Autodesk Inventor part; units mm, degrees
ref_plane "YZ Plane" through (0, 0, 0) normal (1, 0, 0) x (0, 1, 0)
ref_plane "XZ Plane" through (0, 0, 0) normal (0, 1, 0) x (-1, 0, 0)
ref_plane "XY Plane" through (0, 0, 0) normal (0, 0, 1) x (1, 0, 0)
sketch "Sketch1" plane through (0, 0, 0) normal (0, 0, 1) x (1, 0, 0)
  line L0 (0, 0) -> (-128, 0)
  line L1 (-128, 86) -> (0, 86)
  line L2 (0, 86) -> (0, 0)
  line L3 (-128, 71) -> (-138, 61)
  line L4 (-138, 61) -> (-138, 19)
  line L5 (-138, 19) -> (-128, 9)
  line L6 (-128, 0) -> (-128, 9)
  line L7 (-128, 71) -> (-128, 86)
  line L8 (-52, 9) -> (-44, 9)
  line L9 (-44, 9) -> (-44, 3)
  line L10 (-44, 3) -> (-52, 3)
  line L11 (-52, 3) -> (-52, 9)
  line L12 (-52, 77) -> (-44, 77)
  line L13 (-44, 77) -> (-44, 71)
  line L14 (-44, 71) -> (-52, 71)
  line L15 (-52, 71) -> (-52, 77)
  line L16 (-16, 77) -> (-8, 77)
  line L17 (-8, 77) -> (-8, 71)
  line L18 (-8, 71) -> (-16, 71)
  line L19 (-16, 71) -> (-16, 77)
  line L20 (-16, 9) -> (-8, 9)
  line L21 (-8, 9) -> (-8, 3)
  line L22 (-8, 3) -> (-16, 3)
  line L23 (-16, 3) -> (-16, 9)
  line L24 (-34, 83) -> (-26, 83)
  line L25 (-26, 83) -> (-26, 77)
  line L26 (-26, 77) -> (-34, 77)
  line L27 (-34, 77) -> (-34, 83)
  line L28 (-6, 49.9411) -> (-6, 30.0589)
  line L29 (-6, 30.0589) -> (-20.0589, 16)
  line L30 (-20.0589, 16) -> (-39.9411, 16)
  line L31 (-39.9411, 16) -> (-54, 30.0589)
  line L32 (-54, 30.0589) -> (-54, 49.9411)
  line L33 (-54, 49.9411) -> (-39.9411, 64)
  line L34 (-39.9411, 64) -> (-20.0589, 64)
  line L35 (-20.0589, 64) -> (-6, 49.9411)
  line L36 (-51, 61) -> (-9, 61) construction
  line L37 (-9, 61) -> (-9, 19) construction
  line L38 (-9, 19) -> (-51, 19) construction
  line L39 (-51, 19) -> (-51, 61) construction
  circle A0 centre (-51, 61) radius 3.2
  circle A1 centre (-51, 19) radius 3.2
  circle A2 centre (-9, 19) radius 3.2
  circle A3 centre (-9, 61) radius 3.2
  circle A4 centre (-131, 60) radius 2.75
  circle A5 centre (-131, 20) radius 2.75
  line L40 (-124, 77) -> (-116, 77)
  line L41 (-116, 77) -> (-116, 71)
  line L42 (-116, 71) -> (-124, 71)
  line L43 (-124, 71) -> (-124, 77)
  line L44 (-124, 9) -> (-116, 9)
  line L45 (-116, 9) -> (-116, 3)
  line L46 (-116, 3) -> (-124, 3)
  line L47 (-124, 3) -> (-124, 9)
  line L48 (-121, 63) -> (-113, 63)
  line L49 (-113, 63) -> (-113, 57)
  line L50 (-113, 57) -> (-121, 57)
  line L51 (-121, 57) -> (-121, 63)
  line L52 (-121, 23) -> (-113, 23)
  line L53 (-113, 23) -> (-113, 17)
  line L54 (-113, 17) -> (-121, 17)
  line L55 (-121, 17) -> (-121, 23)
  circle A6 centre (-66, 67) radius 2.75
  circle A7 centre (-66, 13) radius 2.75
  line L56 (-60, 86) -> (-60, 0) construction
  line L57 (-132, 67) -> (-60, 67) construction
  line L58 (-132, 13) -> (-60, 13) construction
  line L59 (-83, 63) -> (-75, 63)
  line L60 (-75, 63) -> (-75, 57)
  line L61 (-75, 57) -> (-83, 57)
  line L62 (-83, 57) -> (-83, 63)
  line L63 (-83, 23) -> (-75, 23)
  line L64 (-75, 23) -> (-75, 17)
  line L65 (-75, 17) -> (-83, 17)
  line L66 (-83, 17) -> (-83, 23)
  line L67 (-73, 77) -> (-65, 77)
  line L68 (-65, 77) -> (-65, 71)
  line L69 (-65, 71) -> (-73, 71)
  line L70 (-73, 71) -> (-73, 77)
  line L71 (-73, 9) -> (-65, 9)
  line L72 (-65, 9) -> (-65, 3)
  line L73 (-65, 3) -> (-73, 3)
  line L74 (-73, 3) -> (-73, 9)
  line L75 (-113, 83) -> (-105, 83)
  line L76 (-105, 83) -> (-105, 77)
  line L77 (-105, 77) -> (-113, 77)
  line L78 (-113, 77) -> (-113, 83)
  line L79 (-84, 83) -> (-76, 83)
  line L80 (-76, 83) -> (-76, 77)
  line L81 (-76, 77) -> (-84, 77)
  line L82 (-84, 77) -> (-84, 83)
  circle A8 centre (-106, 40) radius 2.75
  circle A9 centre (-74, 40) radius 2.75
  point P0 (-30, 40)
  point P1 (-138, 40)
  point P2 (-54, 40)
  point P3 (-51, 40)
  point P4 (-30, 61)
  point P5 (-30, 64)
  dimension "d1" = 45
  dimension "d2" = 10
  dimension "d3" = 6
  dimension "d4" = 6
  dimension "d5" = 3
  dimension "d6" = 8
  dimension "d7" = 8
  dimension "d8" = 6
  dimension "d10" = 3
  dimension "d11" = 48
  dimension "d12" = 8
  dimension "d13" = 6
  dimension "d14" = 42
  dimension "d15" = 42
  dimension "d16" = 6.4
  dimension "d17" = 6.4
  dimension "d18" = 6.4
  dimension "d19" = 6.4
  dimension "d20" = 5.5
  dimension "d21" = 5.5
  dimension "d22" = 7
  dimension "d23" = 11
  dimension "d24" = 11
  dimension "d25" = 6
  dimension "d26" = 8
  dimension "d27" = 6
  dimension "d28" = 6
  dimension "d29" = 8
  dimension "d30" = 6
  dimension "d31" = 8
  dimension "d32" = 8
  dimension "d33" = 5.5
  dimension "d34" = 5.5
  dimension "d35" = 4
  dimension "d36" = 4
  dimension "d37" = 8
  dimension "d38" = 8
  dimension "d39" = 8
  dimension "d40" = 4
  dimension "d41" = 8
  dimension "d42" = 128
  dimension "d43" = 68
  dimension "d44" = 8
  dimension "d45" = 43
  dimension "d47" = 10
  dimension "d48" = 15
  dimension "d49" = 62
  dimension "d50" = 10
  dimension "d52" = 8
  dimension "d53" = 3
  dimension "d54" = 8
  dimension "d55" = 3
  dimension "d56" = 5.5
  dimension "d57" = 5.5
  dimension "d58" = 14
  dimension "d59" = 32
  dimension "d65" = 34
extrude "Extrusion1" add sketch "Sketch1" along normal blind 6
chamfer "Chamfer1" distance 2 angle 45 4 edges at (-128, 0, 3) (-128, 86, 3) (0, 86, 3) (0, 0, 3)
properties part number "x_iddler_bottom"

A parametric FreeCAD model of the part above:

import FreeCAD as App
import Part
import Sketcher
from FreeCAD import Vector
Q = App.Units.Quantity


def edges_at(feature, points):
    """Names of the edges that pass closest to the given points."""
    edges = feature.Shape.Edges
    near = lambda p: min(range(len(edges)), key=lambda i: edges[i].distToShape(Part.Vertex(*p))[0])
    return sorted({f"Edge{near(p) + 1}" for p in points})


def add_polygon(sketch, points):
    """Adds a closed chain of lines whose ends are joined by coincident constraints."""
    first, n = sketch.GeometryCount, len(points)
    for a, b in zip(points, points[1:] + points[:1]):
        sketch.addGeometry(Part.LineSegment(App.Vector(*a, 0), App.Vector(*b, 0)), False)
    for i in range(n):
        sketch.addConstraint(Sketcher.Constraint("Coincident", first + i, 2, first + (i + 1) % n, 1))

doc = App.newDocument("Part")
body = doc.addObject("PartDesign::Body", "Body")

# Sketch on XY plane
sketch1 = body.newObject("Sketcher::SketchObject", "Sketch")
sketch1.AttachmentSupport = (doc.getObject("XY_Plane"), [""])
sketch1.MapMode = "FlatFace"
add_polygon(sketch1, [(-128, 0), (0, 0), (0, 86), (-128, 86), (-128, 71), (-138, 61), (-138, 19), (-128, 9)])  # lines 0-7
add_polygon(sketch1, [(-124, 3), (-124, 9), (-116, 9), (-116, 3)])  # lines 8-11
sketch1.addGeometry(Part.Circle(Vector(-131, 20, 0), Vector(0, 0, 1), 2.8), False)  # 12
add_polygon(sketch1, [(-121, 17), (-121, 23), (-113, 23), (-113, 17)])  # lines 13-16
add_polygon(sketch1, [(-83, 17), (-83, 23), (-75, 23), (-75, 17)])  # lines 17-20
sketch1.addGeometry(Part.Circle(Vector(-106, 40, 0), Vector(0, 0, 1), 2.8), False)  # 21
sketch1.addGeometry(Part.Circle(Vector(-74, 40, 0), Vector(0, 0, 1), 2.8), False)  # 22
add_polygon(sketch1, [(-73, 3), (-73, 9), (-65, 9), (-65, 3)])  # lines 23-26
add_polygon(sketch1, [(-52, 3), (-52, 9), (-44, 9), (-44, 3)])  # lines 27-30
sketch1.addGeometry(Part.Circle(Vector(-66, 13, 0), Vector(0, 0, 1), 2.8), False)  # 31
sketch1.addGeometry(Part.Circle(Vector(-51, 19, 0), Vector(0, 0, 1), 3.2), False)  # 32
add_polygon(sketch1, [(-16, 3), (-16, 9), (-8, 9), (-8, 3)])  # lines 33-36
sketch1.addGeometry(Part.Circle(Vector(-9, 19, 0), Vector(0, 0, 1), 3.2), False)  # 37
add_polygon(sketch1, [(-20.1, 64), (-6, 49.9), (-6, 30.1), (-20.1, 16), (-39.9, 16), (-54, 30.1), (-54, 49.9), (-39.9, 64)])  # lines 38-45
sketch1.addGeometry(Part.Circle(Vector(-131, 60, 0), Vector(0, 0, 1), 2.8), False)  # 46
add_polygon(sketch1, [(-121, 57), (-121, 63), (-113, 63), (-113, 57)])  # lines 47-50
add_polygon(sketch1, [(-83, 57), (-83, 63), (-75, 63), (-75, 57)])  # lines 51-54
add_polygon(sketch1, [(-124, 71), (-124, 77), (-116, 77), (-116, 71)])  # lines 55-58
add_polygon(sketch1, [(-113, 77), (-113, 83), (-105, 83), (-105, 77)])  # lines 59-62
add_polygon(sketch1, [(-84, 77), (-84, 83), (-76, 83), (-76, 77)])  # lines 63-66
sketch1.addGeometry(Part.Circle(Vector(-51, 61, 0), Vector(0, 0, 1), 3.2), False)  # 67
sketch1.addGeometry(Part.Circle(Vector(-9, 61, 0), Vector(0, 0, 1), 3.2), False)  # 68
sketch1.addGeometry(Part.Circle(Vector(-66, 67, 0), Vector(0, 0, 1), 2.8), False)  # 69
add_polygon(sketch1, [(-73, 71), (-73, 77), (-65, 77), (-65, 71)])  # lines 70-73
add_polygon(sketch1, [(-52, 71), (-52, 77), (-44, 77), (-44, 71)])  # lines 74-77
add_polygon(sketch1, [(-16, 71), (-16, 77), (-8, 77), (-8, 71)])  # lines 78-81
add_polygon(sketch1, [(-34, 77), (-34, 83), (-26, 83), (-26, 77)])  # lines 82-85
sketch1.addConstraint([
    Sketcher.Constraint("Horizontal", 0),
    Sketcher.Constraint("Vertical", 1),
    Sketcher.Constraint("Horizontal", 2),
    Sketcher.Constraint("Vertical", 3),
    Sketcher.Constraint("Vertical", 5),
    Sketcher.Constraint("Vertical", 7),
    Sketcher.Constraint("Vertical", 8),
    Sketcher.Constraint("Horizontal", 9),
    Sketcher.Constraint("Vertical", 10),
    Sketcher.Constraint("Horizontal", 11),
    Sketcher.Constraint("Vertical", 13),
    Sketcher.Constraint("Horizontal", 14),
    Sketcher.Constraint("Vertical", 15),
    Sketcher.Constraint("Horizontal", 16),
    Sketcher.Constraint("Vertical", 17),
    Sketcher.Constraint("Horizontal", 18),
    Sketcher.Constraint("Vertical", 19),
    Sketcher.Constraint("Horizontal", 20),
    Sketcher.Constraint("Vertical", 23),
    Sketcher.Constraint("Horizontal", 24),
    Sketcher.Constraint("Vertical", 25),
    Sketcher.Constraint("Horizontal", 26),
    Sketcher.Constraint("Vertical", 27),
    Sketcher.Constraint("Horizontal", 28),
    Sketcher.Constraint("Vertical", 29),
    Sketcher.Constraint("Horizontal", 30),
    Sketcher.Constraint("Vertical", 33),
    Sketcher.Constraint("Horizontal", 34),
    Sketcher.Constraint("Vertical", 35),
    Sketcher.Constraint("Horizontal", 36),
    Sketcher.Constraint("Vertical", 39),
    Sketcher.Constraint("Horizontal", 41),
    Sketcher.Constraint("Vertical", 43),
    Sketcher.Constraint("Horizontal", 45),
    Sketcher.Constraint("Vertical", 47),
    Sketcher.Constraint("Horizontal", 48),
    Sketcher.Constraint("Vertical", 49),
    Sketcher.Constraint("Horizontal", 50),
    Sketcher.Constraint("Vertical", 51),
    Sketcher.Constraint("Horizontal", 52),
    Sketcher.Constraint("Vertical", 53),
    Sketcher.Constraint("Horizontal", 54),
    Sketcher.Constraint("Vertical", 55),
    Sketcher.Constraint("Horizontal", 56),
    Sketcher.Constraint("Vertical", 57),
    Sketcher.Constraint("Horizontal", 58),
    Sketcher.Constraint("Vertical", 59),
    Sketcher.Constraint("Horizontal", 60),
    Sketcher.Constraint("Vertical", 61),
    Sketcher.Constraint("Horizontal", 62),
    Sketcher.Constraint("Vertical", 63),
    Sketcher.Constraint("Horizontal", 64),
    Sketcher.Constraint("Vertical", 65),
    Sketcher.Constraint("Horizontal", 66),
    Sketcher.Constraint("Vertical", 70),
    Sketcher.Constraint("Horizontal", 71),
    Sketcher.Constraint("Vertical", 72),
    Sketcher.Constraint("Horizontal", 73),
    Sketcher.Constraint("Vertical", 74),
    Sketcher.Constraint("Horizontal", 75),
    Sketcher.Constraint("Vertical", 76),
    Sketcher.Constraint("Horizontal", 77),
    Sketcher.Constraint("Vertical", 78),
    Sketcher.Constraint("Horizontal", 79),
    Sketcher.Constraint("Vertical", 80),
    Sketcher.Constraint("Horizontal", 81),
    Sketcher.Constraint("Vertical", 82),
    Sketcher.Constraint("Horizontal", 83),
    Sketcher.Constraint("Vertical", 84),
    Sketcher.Constraint("Horizontal", 85),
    Sketcher.Constraint("Coincident", 0, 2, -1, 1),
    Sketcher.Constraint("Equal", 12, 21),
    Sketcher.Constraint("Equal", 21, 22),
    Sketcher.Constraint("Equal", 22, 31),
    Sketcher.Constraint("Equal", 32, 37),
    Sketcher.Constraint("Equal", 31, 46),
    Sketcher.Constraint("Equal", 37, 67),
    Sketcher.Constraint("Equal", 67, 68),
    Sketcher.Constraint("Equal", 46, 69),
    Sketcher.Constraint("Perpendicular", 4, 6),
    Sketcher.Constraint("Parallel", 6, 38),
    Sketcher.Constraint("Perpendicular", 38, 40),
    Sketcher.Constraint("Perpendicular", 40, 42),
    Sketcher.Constraint("Perpendicular", 42, 44),
    Sketcher.Constraint("Horizontal", 21, 3, 22, 3),
    Sketcher.Constraint("Horizontal", 32, 3, 37, 3),
    Sketcher.Constraint("Horizontal", 67, 3, 68, 3),
    Sketcher.Constraint("Horizontal", 68, 3, 4, 2),
    Sketcher.Constraint("Horizontal", 37, 3, 5, 2),
    Sketcher.Constraint("Horizontal", 6, 2, 8, 2),
    Sketcher.Constraint("Horizontal", 14, 2, 17, 2),
    Sketcher.Constraint("Horizontal", 16, 2, 19, 2),
    Sketcher.Constraint("Horizontal", 9, 2, 23, 2),
    Sketcher.Constraint("Horizontal", 11, 2, 25, 2),
    Sketcher.Constraint("Horizontal", 24, 2, 27, 2),
    Sketcher.Constraint("Horizontal", 26, 2, 29, 2),
    Sketcher.Constraint("Horizontal", 28, 2, 33, 2),
    Sketcher.Constraint("Horizontal", 30, 2, 35, 2),
    Sketcher.Constraint("Horizontal", 39, 2, 42, 2),
    Sketcher.Constraint("Horizontal", 38, 2, 43, 2),
    Sketcher.Constraint("Horizontal", 48, 2, 51, 2),
    Sketcher.Constraint("Horizontal", 50, 2, 53, 2),
    Sketcher.Constraint("Horizontal", 3, 2, 57, 2),
    Sketcher.Constraint("Horizontal", 56, 2, 61, 2),
    Sketcher.Constraint("Horizontal", 60, 2, 63, 2),
    Sketcher.Constraint("Horizontal", 62, 2, 65, 2),
    Sketcher.Constraint("Horizontal", 66, 2, 70, 2),
    Sketcher.Constraint("Horizontal", 58, 2, 72, 2),
    Sketcher.Constraint("Horizontal", 71, 2, 74, 2),
    Sketcher.Constraint("Horizontal", 73, 2, 76, 2),
    Sketcher.Constraint("Horizontal", 75, 2, 78, 2),
    Sketcher.Constraint("Horizontal", 77, 2, 80, 2),
    Sketcher.Constraint("Horizontal", 64, 2, 82, 2),
    Sketcher.Constraint("Horizontal", 79, 2, 84, 2),
    Sketcher.Constraint("Vertical", 12, 3, 46, 3),
    Sketcher.Constraint("Vertical", 32, 3, 67, 3),
    Sketcher.Constraint("Vertical", 37, 3, 68, 3),
    Sketcher.Constraint("Vertical", 31, 3, 69, 3),
    Sketcher.Constraint("Vertical", 3, 2, 6, 2),
    Sketcher.Constraint("Vertical", 41, 2, 44, 2),
    Sketcher.Constraint("Vertical", 40, 2, 45, 2),
    Sketcher.Constraint("Vertical", 16, 2, 47, 2),
    Sketcher.Constraint("Vertical", 15, 2, 48, 2),
    Sketcher.Constraint("Vertical", 20, 2, 51, 2),
    Sketcher.Constraint("Vertical", 19, 2, 52, 2),
    Sketcher.Constraint("Vertical", 11, 2, 55, 2),
    Sketcher.Constraint("Vertical", 10, 2, 56, 2),
    Sketcher.Constraint("Vertical", 49, 2, 59, 2),
    Sketcher.Constraint("Vertical", 26, 2, 70, 2),
    Sketcher.Constraint("Vertical", 25, 2, 71, 2),
    Sketcher.Constraint("Vertical", 30, 2, 74, 2),
    Sketcher.Constraint("Vertical", 29, 2, 75, 2),
    Sketcher.Constraint("Vertical", 36, 2, 78, 2),
    Sketcher.Constraint("Vertical", 35, 2, 79, 2),
    Sketcher.Constraint("Equal", 11, 14),
    Sketcher.Constraint("Equal", 16, 18),
    Sketcher.Constraint("Equal", 20, 24),
    Sketcher.Constraint("Equal", 26, 28),
    Sketcher.Constraint("Equal", 30, 34),
    Sketcher.Constraint("Equal", 58, 60),
    Sketcher.Constraint("Equal", 62, 64),
    Sketcher.Constraint("Equal", 81, 83),
    Sketcher.Constraint("Equal", 10, 13),
    Sketcher.Constraint("Equal", 45, 39),
    Sketcher.Constraint("Equal", 35, 47),
    Sketcher.Constraint("Equal", 53, 55),
    Sketcher.Constraint("Equal", 57, 59),
    Sketcher.Constraint("Diameter", 12, Q("5.5 mm")),
    Sketcher.Constraint("Diameter", 32, Q("6.4 mm")),
    Sketcher.Constraint("DistanceX", 0, 1, 0, 2, Q("128 mm")),
    Sketcher.Constraint("DistanceX", 9, 1, 9, 2, Q("8 mm")),
    Sketcher.Constraint("DistanceY", 3, 2, 3, 1, Q("15 mm")),
    Sketcher.Constraint("DistanceY", 5, 2, 5, 1, Q("42 mm")),
    Sketcher.Constraint("DistanceY", 8, 1, 8, 2, Q("6 mm")),
    Sketcher.Constraint("DistanceY", -1, 1, 10, 2, Q("3 mm")),
    Sketcher.Constraint("DistanceX", 34, 2, -1, 1, Q("8 mm")),
    Sketcher.Constraint("DistanceX", 38, 2, -1, 1, Q("6 mm")),
    Sketcher.Constraint("DistanceX", 82, 2, -1, 1, Q("34 mm")),
    Sketcher.Constraint("DistanceY", 1, 1, 1, 2, Q("86 mm")),
    Sketcher.Constraint("DistanceX", 12, 3, -1, 1, Q("131 mm")),
    Sketcher.Constraint("DistanceY", -1, 1, 12, 3, Q("20 mm")),
    Sketcher.Constraint("DistanceX", 21, 3, -1, 1, Q("106 mm")),
    Sketcher.Constraint("DistanceY", -1, 1, 21, 3, Q("40 mm")),
    Sketcher.Constraint("DistanceX", 22, 3, -1, 1, Q("74 mm")),
    Sketcher.Constraint("DistanceX", 31, 3, -1, 1, Q("66 mm")),
    Sketcher.Constraint("DistanceY", -1, 1, 31, 3, Q("13 mm")),
    Sketcher.Constraint("DistanceX", 32, 3, -1, 1, Q("51 mm")),
    Sketcher.Constraint("DistanceX", 37, 3, -1, 1, Q("9 mm")),
    Sketcher.Constraint("DistanceY", -1, 1, 46, 3, Q("60 mm")),
    Sketcher.Constraint("DistanceY", -1, 1, 69, 3, Q("67 mm")),
    Sketcher.Constraint("DistanceX", 8, 2, -1, 1, Q("124 mm")),
    Sketcher.Constraint("DistanceX", 13, 2, -1, 1, Q("121 mm")),
    Sketcher.Constraint("DistanceY", -1, 1, 13, 2, Q("23 mm")),
    Sketcher.Constraint("DistanceX", 17, 2, -1, 1, Q("83 mm")),
    Sketcher.Constraint("DistanceX", 23, 2, -1, 1, Q("73 mm")),
    Sketcher.Constraint("DistanceX", 27, 2, -1, 1, Q("52 mm")),
    Sketcher.Constraint("DistanceY", -1, 1, 40, 2, Q("16 mm")),
    Sketcher.Constraint("DistanceX", 42, 2, -1, 1, Q("54 mm")),
    Sketcher.Constraint("DistanceY", -1, 1, 47, 2, Q("63 mm")),
    Sketcher.Constraint("DistanceX", 63, 2, -1, 1, Q("84 mm")),
    Sketcher.Constraint("DistanceX", 41, 2, 41, 1, Q("19.8822 mm")),
])
pad1 = body.newObject("PartDesign::Pad", "Pad")
pad1.Profile = sketch1
pad1.Length = 6
doc.recompute()

chamfer = body.newObject("PartDesign::Chamfer", "Chamfer")
chamfer.Base = (pad1, edges_at(pad1, [
    (-128, 0, 3),
    (-128, 86, 3),
    (0, 86, 3),
    (0, 0, 3),
]))
chamfer.Size = 2

doc.recompute()
